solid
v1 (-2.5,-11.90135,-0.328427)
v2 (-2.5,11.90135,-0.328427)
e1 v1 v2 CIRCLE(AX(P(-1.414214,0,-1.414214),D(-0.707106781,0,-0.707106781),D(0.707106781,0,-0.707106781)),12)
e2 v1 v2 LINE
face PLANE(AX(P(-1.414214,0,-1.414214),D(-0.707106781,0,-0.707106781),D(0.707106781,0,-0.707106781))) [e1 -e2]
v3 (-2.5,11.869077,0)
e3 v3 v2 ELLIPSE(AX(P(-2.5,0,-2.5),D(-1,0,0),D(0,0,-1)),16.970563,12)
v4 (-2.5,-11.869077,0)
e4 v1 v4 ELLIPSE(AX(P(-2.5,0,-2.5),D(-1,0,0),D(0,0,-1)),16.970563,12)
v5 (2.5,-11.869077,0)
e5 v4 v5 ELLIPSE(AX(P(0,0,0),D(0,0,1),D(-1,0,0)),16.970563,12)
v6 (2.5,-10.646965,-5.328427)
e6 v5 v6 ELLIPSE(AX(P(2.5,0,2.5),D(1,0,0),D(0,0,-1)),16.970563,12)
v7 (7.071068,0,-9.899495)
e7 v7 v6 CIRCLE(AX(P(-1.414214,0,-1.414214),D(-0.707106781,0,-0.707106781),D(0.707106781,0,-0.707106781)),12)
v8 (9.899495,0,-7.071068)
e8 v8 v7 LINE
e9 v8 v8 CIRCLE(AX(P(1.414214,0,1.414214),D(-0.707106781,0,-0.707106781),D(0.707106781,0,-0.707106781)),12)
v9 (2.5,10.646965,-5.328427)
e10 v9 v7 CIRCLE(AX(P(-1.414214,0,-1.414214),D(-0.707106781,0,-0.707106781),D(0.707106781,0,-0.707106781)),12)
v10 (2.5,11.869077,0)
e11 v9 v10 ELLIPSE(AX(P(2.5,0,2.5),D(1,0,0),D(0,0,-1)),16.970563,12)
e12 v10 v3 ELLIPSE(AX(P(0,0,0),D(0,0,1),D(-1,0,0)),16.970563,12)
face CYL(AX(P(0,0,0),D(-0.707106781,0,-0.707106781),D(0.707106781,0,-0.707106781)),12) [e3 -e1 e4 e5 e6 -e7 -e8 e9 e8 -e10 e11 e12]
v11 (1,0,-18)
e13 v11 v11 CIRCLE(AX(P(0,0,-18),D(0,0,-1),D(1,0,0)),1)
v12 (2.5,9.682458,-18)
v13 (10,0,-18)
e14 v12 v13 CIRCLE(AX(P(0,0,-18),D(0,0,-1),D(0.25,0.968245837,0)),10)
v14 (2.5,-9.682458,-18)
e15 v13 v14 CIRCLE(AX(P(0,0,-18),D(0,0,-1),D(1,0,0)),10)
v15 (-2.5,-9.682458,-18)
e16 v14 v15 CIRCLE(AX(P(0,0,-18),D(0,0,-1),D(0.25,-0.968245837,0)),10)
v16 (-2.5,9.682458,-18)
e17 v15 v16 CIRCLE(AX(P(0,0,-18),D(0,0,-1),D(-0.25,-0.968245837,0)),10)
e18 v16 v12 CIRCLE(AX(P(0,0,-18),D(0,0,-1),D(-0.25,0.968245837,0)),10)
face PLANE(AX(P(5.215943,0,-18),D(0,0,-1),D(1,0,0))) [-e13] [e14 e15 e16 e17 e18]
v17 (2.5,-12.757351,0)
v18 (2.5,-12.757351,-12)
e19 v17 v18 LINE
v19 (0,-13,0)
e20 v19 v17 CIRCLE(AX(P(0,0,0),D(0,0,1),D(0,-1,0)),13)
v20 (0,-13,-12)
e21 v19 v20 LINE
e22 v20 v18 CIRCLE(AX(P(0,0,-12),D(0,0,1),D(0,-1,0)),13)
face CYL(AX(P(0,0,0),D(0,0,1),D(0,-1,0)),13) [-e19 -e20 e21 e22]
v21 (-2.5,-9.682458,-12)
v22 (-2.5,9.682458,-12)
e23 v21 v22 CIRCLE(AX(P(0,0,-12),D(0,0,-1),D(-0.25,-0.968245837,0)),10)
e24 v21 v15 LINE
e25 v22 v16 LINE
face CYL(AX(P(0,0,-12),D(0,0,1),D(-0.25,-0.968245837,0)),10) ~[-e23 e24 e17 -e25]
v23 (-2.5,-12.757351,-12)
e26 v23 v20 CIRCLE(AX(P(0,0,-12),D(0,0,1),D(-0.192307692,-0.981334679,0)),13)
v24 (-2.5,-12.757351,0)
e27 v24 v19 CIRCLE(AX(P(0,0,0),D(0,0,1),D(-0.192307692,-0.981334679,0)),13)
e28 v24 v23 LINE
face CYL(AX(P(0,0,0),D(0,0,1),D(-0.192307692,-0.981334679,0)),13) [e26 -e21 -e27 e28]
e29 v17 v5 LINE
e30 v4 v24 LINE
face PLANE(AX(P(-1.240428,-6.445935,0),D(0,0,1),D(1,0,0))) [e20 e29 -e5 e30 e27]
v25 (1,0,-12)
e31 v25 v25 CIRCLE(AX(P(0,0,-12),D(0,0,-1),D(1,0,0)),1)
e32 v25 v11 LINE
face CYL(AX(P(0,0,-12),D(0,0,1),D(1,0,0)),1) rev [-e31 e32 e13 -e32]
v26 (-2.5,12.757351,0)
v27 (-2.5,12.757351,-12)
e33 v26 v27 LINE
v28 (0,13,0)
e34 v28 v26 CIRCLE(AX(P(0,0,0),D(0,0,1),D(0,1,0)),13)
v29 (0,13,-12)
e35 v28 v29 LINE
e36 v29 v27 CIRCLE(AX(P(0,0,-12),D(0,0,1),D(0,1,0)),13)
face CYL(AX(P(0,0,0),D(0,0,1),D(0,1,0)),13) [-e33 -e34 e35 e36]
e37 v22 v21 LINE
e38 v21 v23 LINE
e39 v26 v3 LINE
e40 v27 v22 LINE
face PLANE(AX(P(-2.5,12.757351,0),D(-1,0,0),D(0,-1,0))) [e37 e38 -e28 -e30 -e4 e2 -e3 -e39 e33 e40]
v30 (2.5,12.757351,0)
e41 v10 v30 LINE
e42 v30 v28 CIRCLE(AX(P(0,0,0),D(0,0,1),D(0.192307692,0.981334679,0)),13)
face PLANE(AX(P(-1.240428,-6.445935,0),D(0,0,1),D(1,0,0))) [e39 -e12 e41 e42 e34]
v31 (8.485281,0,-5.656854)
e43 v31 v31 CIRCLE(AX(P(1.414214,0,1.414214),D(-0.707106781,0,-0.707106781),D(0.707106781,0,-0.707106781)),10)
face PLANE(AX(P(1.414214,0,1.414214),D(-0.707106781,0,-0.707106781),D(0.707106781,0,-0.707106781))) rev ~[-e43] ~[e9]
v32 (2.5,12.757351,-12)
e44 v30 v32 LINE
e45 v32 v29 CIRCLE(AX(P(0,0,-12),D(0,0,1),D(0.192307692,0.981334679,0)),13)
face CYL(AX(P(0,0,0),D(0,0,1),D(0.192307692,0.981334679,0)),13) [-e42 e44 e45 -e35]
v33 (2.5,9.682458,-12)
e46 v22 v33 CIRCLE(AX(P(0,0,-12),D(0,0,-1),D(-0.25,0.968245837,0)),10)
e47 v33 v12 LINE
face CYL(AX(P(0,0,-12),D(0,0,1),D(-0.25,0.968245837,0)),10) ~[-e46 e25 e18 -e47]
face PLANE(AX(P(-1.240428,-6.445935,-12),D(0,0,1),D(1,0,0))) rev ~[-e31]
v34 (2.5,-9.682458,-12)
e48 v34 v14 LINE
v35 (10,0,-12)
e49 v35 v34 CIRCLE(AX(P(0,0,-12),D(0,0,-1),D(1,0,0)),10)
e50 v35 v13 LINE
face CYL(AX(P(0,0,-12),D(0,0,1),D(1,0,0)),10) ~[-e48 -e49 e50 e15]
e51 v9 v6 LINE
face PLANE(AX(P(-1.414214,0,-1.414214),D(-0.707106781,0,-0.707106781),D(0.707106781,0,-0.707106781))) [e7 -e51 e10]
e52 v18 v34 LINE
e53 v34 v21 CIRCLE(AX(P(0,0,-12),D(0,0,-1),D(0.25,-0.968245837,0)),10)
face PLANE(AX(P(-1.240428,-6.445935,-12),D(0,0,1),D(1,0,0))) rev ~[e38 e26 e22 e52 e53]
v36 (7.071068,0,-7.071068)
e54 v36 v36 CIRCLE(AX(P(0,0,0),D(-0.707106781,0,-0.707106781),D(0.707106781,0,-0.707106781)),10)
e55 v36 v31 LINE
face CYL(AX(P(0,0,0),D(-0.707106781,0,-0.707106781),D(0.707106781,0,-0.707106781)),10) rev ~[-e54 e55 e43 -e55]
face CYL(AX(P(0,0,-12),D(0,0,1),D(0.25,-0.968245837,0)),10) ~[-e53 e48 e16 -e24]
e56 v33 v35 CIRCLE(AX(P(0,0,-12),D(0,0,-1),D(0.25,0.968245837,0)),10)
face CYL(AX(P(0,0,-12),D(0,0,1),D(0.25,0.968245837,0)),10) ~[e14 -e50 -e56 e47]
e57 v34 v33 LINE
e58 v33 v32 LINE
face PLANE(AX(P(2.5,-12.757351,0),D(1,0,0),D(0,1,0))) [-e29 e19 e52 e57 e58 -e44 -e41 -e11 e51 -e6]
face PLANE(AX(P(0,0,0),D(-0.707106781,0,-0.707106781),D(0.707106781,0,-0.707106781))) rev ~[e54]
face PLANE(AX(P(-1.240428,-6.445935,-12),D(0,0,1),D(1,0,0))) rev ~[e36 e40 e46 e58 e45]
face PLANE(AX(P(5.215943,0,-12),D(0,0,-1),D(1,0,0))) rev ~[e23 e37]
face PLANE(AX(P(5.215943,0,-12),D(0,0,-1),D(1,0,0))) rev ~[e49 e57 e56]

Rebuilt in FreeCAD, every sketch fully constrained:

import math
import FreeCAD as App
import Part
import Sketcher

V = App.Vector
Q = App.Units.Quantity

doc = App.newDocument("Part")
params = doc.addObject("Spreadsheet::Sheet", "Params")
for row, (alias, value) in enumerate([
    ("sketch1_diameter", "24 mm"),
    ("pad1_length", "4 mm"),
    ("sketch2_radius", "13 mm"),
    ("pad2_length", "12 mm"),
    ("sketch3_diameter", "2 mm"),
    ("sketch3_radius", "10 mm"),
    ("pad3_length", "6 mm"),
    ("sketch4_diameter", "20 mm"),
    ("pocket1_length", "2 mm"),
], start=1):
    params.set(f"A{row}", alias)
    params.set(f"B{row}", "=" + value)
    params.setAlias(f"B{row}", alias)

body = doc.addObject("PartDesign::Body", "Body")

sketch1 = body.newObject("Sketcher::SketchObject", "Sketch")
sketch1.Placement = App.Placement(V(0, 0, 0), App.Rotation(V(0.707106781, 0, -0.707106781), V(0, -0.999999999, 0), V(-0.707106781, 0, -0.707106781), "ZXY"))
sketch1.addGeometry(Part.Circle(V(0, 0, 0), V(0, 0, 1), 12), False)
sketch1.addConstraint([
    Sketcher.Constraint("Coincident", 0, 3, -1, 1),
    Sketcher.Constraint("Diameter", 0, Q("24 mm")),
])
sketch1.setExpression("Constraints[1]", "Params.sketch1_diameter")
pad1 = body.newObject("PartDesign::Pad", "Pad")
pad1.Profile = sketch1
pad1.setExpression("Length", "Params.pad1_length")
pad1.Midplane = True

sketch2 = body.newObject("Sketcher::SketchObject", "Sketch001")
sketch2.AttachmentSupport = (doc.getObject("XY_Plane"), [""])
sketch2.MapMode = "FlatFace"
sketch2.addGeometry([
    Part.ArcOfCircle(Part.Circle(V(0, 0, 0), V(0, 0, 1), 13), math.radians(-101.087489), math.radians(-90)),
    Part.ArcOfCircle(Part.Circle(V(0, 0, 0), V(0, 0, 1), 13), math.radians(-90), math.radians(-78.912511)),
    Part.LineSegment(V(2.5, -12.757351, 0), V(2.5, 12.757351, 0)),
    Part.ArcOfCircle(Part.Circle(V(0, 0, 0), V(0, 0, 1), 13), math.radians(78.912511), math.radians(90)),
    Part.ArcOfCircle(Part.Circle(V(0, 0, 0), V(0, 0, 1), 13), math.radians(90), math.radians(101.087489)),
    Part.LineSegment(V(-2.5, 12.757351, 0), V(-2.5, -12.757351, 0)),
], False)
sketch2.addConstraint([
    Sketcher.Constraint("Tangent", 0, 2, 1, 1),
    Sketcher.Constraint("Coincident", 1, 2, 2, 1),
    Sketcher.Constraint("Coincident", 2, 2, 3, 1),
    Sketcher.Constraint("Tangent", 3, 2, 4, 1),
    Sketcher.Constraint("Coincident", 4, 2, 5, 1),
    Sketcher.Constraint("Coincident", 5, 2, 0, 1),
    Sketcher.Constraint("Vertical", 2),
    Sketcher.Constraint("Vertical", 5),
    Sketcher.Constraint("Coincident", 0, 3, -1, 1),
    Sketcher.Constraint("Coincident", 3, 3, -1, 1),
    Sketcher.Constraint("Equal", 0, 1),
    Sketcher.Constraint("Equal", 1, 3),
    Sketcher.Constraint("Equal", 3, 4),
    Sketcher.Constraint("PointOnObject", 0, 2, -2),
    Sketcher.Constraint("PointOnObject", 3, 2, -2),
    Sketcher.Constraint("Horizontal", 2, 2, 4, 2),
    Sketcher.Constraint("Radius", 0, Q("13 mm")),
    Sketcher.Constraint("DistanceX", 4, 2, 2, 2, Q("5 mm")),
])
sketch2.setExpression("Constraints[16]", "Params.sketch2_radius")
pad2 = body.newObject("PartDesign::Pad", "Pad001")
pad2.Profile = sketch2
pad2.setExpression("Length", "Params.pad2_length")
pad2.Reversed = True

sketch3 = body.newObject("Sketcher::SketchObject", "Sketch002")
sketch3.AttachmentSupport = (doc.getObject("XY_Plane"), [""])
sketch3.MapMode = "FlatFace"
sketch3.AttachmentOffset = App.Placement(V(0, 0, -12), App.Rotation())
sketch3.addGeometry([
    Part.ArcOfCircle(Part.Circle(V(0, 0, 0), V(0, 0, 1), 10), math.radians(0), math.radians(75.522488)),
    Part.ArcOfCircle(Part.Circle(V(0, 0, 0), V(0, 0, 1), 10), math.radians(-75.522488), math.radians(0)),
    Part.ArcOfCircle(Part.Circle(V(0, 0, 0), V(0, 0, 1), 10), math.radians(-104.477512), math.radians(-75.522488)),
    Part.ArcOfCircle(Part.Circle(V(0, 0, 0), V(0, 0, 1), 10), math.radians(104.477512), math.radians(255.522488)),
    Part.ArcOfCircle(Part.Circle(V(0, 0, 0), V(0, 0, 1), 10), math.radians(75.522488), math.radians(104.477512)),
    Part.Circle(V(0, 0, 0), V(0, 0, 1), 1),
], False)
sketch3.addConstraint([
    Sketcher.Constraint("Tangent", 0, 1, 1, 2),
    Sketcher.Constraint("Tangent", 1, 1, 2, 2),
    Sketcher.Constraint("Tangent", 2, 1, 3, 2),
    Sketcher.Constraint("Tangent", 3, 1, 4, 2),
    Sketcher.Constraint("Tangent", 4, 1, 0, 2),
    Sketcher.Constraint("Coincident", 0, 3, -1, 1),
    Sketcher.Constraint("Coincident", 2, 3, -1, 1),
    Sketcher.Constraint("Coincident", 5, 3, -1, 1),
    Sketcher.Constraint("PointOnObject", 0, 1, -1),
    Sketcher.Constraint("Horizontal", 1, 1, 2, 1),
    Sketcher.Constraint("Horizontal", 3, 1, 4, 1),
    Sketcher.Constraint("Vertical", 2, 1, 3, 1),
    Sketcher.Constraint("Diameter", 5, Q("2 mm")),
    Sketcher.Constraint("Radius", 0, Q("10 mm")),
    Sketcher.Constraint("DistanceX", 2, 1, 1, 1, Q("5 mm")),
])
sketch3.setExpression("Constraints[12]", "Params.sketch3_diameter")
sketch3.setExpression("Constraints[13]", "Params.sketch3_radius")
pad3 = body.newObject("PartDesign::Pad", "Pad002")
pad3.Profile = sketch3
pad3.setExpression("Length", "Params.pad3_length")
pad3.Reversed = True

sketch4 = body.newObject("Sketcher::SketchObject", "Sketch003")
sketch4.Placement = App.Placement(V(0, 0, 0), App.Rotation(V(0.707106781, 0, -0.707106781), V(0, -0.999999999, 0), V(-0.707106781, 0, -0.707106781), "ZXY"))
sketch4.addGeometry(Part.Circle(V(0, 0, 0), V(0, 0, 1), 10), False)
sketch4.addConstraint([
    Sketcher.Constraint("Coincident", 0, 3, -1, 1),
    Sketcher.Constraint("Diameter", 0, Q("20 mm")),
])
sketch4.setExpression("Constraints[1]", "Params.sketch4_diameter")
pocket1 = body.newObject("PartDesign::Pocket", "Pocket")
pocket1.Profile = sketch4
pocket1.setExpression("Length", "Params.pocket1_length")

doc.recompute()
